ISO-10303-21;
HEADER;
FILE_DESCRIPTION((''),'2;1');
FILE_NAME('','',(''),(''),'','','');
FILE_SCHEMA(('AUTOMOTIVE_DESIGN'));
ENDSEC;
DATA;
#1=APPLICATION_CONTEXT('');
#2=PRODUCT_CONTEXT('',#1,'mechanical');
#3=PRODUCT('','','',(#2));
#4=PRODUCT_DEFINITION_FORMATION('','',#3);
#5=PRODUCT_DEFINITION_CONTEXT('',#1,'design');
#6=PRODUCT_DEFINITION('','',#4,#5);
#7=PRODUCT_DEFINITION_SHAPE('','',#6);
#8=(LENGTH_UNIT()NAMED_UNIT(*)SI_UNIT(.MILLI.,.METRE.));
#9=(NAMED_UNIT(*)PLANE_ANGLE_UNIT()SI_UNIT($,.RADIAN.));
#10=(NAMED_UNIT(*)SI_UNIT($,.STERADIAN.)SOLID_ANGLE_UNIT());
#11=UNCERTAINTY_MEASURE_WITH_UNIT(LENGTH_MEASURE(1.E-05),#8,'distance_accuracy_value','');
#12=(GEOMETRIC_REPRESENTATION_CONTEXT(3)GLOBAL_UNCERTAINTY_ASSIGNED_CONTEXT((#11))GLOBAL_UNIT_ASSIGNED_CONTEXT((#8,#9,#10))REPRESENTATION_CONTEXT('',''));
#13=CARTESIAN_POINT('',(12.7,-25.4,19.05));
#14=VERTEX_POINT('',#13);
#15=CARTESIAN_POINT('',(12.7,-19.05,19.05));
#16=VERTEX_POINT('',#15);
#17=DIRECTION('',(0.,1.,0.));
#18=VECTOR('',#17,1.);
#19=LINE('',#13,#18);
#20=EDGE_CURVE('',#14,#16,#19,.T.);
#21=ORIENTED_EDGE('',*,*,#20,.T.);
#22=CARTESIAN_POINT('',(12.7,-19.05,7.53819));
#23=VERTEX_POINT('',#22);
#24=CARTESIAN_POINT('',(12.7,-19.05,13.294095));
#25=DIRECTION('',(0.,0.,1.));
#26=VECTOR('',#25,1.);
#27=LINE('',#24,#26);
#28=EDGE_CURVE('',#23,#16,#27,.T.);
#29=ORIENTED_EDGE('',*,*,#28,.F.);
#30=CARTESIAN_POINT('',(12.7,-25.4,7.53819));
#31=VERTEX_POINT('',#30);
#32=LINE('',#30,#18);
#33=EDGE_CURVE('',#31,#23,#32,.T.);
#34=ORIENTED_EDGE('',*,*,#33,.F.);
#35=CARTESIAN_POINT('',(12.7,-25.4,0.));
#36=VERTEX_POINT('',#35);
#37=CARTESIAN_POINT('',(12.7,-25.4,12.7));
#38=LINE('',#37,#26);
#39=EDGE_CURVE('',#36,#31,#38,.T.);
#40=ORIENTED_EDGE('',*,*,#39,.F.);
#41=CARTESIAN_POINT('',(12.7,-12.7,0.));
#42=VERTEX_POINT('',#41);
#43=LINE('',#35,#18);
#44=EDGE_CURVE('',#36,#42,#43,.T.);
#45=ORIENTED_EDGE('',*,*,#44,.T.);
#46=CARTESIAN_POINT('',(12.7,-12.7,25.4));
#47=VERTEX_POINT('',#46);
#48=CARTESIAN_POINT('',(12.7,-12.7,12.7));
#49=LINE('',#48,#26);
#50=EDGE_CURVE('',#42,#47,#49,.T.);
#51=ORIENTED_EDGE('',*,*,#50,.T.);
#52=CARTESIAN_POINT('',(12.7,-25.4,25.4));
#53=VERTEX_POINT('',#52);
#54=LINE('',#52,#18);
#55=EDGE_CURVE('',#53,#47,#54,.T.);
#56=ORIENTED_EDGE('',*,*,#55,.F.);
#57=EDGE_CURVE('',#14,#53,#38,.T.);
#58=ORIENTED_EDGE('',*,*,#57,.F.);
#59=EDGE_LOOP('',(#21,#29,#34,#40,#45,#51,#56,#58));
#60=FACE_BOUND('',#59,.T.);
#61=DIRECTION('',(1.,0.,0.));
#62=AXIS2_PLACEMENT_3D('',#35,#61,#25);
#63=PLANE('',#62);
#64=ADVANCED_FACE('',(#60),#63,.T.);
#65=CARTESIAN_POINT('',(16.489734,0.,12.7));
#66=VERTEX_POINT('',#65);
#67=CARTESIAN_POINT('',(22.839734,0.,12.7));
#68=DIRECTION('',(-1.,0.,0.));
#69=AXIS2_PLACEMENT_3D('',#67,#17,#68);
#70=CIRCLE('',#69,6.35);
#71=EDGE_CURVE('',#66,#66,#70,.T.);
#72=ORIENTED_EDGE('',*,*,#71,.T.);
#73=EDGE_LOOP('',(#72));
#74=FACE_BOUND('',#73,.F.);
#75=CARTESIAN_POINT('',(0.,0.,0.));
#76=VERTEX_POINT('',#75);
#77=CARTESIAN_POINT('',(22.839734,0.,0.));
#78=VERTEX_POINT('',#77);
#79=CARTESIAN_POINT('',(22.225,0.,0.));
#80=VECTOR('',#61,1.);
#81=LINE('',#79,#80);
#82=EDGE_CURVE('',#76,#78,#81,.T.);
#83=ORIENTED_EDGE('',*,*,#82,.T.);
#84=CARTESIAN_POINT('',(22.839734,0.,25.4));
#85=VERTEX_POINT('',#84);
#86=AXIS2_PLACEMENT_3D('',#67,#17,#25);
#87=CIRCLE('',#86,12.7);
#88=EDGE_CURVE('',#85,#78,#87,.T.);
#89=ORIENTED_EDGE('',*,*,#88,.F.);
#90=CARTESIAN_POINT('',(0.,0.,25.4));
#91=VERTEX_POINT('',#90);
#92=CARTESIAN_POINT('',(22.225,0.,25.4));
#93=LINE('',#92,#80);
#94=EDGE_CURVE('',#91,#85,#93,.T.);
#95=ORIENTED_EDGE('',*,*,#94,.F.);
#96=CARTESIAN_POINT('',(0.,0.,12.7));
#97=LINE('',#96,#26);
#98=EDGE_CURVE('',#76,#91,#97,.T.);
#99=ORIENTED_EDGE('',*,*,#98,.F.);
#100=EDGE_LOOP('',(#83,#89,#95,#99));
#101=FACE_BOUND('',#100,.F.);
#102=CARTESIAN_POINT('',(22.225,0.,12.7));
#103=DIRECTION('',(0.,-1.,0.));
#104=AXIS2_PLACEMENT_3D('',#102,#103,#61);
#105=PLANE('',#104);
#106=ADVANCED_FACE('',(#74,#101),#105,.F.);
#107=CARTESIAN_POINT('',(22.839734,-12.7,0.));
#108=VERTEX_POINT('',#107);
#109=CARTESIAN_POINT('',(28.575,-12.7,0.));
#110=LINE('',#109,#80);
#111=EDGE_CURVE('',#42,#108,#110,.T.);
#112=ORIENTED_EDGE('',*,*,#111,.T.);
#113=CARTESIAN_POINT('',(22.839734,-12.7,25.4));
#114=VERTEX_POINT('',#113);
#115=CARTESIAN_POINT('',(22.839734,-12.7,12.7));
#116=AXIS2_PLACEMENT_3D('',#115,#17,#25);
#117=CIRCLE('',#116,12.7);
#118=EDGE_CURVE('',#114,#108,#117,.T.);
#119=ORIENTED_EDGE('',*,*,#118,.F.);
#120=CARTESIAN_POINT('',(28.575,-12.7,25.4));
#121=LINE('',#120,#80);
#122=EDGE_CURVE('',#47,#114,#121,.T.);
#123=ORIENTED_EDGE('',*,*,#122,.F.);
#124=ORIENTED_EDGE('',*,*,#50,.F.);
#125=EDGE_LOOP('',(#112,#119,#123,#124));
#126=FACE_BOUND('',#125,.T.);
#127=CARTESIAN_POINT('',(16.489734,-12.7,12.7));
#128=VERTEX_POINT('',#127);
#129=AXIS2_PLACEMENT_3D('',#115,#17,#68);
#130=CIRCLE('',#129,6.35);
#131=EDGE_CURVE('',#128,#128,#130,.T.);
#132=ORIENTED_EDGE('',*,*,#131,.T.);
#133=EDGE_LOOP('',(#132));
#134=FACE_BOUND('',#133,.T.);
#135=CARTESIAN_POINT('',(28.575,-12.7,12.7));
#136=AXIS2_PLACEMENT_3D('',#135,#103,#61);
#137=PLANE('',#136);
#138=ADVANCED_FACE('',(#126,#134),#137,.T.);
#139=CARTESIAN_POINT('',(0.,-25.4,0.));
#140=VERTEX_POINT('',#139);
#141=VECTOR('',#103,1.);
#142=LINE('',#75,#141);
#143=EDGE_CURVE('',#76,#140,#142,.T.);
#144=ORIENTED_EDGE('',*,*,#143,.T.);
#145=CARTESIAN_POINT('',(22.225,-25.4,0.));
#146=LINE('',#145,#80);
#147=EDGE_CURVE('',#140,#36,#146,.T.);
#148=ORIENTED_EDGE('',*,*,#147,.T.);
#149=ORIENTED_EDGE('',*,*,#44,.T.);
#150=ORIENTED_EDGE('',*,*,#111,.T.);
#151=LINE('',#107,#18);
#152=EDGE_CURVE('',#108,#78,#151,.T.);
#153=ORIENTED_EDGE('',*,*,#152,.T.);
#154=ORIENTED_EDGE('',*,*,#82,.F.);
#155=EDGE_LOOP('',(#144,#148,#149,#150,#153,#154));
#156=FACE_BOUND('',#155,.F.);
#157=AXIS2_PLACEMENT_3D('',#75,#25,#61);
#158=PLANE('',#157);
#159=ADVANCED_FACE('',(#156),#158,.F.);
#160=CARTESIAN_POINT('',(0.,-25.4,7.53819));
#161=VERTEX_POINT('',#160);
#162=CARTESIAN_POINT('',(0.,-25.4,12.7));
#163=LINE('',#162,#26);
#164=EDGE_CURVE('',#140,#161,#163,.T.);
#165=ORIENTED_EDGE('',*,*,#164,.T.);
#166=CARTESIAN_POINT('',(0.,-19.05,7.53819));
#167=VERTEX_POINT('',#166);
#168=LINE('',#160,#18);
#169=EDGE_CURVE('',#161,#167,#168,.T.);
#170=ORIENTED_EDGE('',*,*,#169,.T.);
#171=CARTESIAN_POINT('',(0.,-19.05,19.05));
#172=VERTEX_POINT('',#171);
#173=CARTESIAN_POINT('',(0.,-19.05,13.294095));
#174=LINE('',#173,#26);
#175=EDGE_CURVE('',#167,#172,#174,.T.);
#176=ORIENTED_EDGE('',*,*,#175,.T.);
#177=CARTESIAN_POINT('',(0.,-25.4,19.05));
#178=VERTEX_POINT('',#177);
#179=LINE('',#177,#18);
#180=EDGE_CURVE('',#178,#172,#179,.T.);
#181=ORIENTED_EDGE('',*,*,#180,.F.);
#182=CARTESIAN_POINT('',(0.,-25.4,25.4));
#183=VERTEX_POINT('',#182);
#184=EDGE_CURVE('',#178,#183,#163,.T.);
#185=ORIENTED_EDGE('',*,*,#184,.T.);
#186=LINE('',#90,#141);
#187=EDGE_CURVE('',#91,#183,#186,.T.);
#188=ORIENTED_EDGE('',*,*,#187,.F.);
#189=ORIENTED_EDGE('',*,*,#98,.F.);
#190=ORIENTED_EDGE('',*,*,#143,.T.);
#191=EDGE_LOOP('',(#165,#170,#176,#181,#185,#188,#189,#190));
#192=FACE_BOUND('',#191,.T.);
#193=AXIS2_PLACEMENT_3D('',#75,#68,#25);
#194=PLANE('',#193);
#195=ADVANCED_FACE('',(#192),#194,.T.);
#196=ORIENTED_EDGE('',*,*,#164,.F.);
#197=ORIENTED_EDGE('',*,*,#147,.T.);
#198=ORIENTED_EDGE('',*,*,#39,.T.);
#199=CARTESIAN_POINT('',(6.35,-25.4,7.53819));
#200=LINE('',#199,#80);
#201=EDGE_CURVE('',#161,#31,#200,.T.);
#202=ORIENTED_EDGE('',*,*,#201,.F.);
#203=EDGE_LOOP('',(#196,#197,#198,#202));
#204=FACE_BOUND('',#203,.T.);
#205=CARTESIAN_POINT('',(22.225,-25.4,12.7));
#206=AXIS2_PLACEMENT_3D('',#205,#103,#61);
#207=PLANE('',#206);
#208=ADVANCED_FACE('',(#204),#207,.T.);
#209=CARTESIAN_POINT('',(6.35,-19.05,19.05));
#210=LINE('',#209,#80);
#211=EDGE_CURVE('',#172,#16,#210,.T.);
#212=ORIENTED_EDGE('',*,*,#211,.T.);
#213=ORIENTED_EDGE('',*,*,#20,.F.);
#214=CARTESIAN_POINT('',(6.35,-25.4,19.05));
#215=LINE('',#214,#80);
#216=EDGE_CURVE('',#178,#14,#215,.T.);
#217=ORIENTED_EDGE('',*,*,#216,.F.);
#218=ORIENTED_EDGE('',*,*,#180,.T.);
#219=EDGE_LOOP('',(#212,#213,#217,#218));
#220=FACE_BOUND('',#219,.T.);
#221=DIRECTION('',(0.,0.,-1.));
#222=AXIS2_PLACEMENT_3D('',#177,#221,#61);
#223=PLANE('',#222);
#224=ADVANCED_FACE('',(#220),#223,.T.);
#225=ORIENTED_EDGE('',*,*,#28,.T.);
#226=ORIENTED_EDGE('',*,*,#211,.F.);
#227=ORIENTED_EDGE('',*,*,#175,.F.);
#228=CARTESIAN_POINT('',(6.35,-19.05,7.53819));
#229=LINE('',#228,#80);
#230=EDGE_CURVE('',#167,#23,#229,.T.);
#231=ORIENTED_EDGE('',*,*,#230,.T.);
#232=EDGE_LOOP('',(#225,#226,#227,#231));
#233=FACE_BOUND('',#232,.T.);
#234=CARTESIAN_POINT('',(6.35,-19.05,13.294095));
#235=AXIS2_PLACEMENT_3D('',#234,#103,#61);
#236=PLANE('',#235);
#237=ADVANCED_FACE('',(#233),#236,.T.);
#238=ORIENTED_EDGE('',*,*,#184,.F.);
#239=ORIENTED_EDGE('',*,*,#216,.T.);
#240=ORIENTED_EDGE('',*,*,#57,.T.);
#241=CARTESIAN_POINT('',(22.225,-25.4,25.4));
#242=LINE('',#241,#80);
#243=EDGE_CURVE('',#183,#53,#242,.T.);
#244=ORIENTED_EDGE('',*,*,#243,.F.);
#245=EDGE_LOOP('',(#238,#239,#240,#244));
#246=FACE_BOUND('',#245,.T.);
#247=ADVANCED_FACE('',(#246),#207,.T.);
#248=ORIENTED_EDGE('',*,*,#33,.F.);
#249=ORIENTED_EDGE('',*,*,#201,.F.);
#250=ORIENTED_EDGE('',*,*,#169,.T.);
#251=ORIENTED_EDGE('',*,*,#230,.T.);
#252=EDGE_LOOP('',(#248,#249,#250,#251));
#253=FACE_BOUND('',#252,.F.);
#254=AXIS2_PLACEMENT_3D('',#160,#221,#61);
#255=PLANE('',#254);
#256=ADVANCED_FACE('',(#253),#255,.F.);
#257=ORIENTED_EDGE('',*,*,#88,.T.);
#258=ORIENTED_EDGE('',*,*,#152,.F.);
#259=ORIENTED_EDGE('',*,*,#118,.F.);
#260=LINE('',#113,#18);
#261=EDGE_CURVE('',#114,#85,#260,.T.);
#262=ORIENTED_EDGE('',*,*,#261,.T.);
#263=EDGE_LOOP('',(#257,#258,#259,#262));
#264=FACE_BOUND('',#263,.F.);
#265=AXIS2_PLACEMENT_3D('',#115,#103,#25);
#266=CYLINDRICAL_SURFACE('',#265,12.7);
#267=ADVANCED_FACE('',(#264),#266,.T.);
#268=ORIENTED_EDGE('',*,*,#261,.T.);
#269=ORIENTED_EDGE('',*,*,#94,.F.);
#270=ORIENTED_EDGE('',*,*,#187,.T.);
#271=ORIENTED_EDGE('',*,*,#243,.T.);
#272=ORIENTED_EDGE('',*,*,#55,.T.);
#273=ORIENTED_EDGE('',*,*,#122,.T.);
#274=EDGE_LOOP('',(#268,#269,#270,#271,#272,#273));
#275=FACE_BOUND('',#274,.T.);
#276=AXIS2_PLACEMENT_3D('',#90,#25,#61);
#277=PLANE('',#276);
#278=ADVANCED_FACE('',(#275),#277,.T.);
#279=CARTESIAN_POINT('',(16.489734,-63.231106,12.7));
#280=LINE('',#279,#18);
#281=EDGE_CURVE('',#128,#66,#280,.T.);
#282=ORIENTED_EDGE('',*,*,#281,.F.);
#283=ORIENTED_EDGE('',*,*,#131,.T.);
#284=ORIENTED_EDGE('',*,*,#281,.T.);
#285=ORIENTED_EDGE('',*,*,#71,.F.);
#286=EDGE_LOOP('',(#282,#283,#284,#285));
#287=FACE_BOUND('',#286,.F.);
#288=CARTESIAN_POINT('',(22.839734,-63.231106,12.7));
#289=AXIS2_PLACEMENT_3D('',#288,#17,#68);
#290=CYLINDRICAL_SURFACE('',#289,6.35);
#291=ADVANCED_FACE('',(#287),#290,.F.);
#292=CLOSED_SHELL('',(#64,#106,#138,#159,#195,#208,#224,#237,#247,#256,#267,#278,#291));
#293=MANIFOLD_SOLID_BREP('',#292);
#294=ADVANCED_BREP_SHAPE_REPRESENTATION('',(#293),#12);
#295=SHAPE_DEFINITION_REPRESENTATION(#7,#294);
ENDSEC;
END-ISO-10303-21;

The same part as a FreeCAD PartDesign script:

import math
import FreeCAD as App
import Part
import Sketcher

V = App.Vector
Q = App.Units.Quantity

doc = App.newDocument("Part")
body = doc.addObject("PartDesign::Body", "Body")

sketch1 = body.newObject("Sketcher::SketchObject", "Sketch")
sketch1.AttachmentSupport = (doc.getObject("XZ_Plane"), [""])
sketch1.MapMode = "FlatFace"
sketch1.addGeometry(Part.LineSegment(V(0, 25, 0), V(0, 0, 0)), False)
sketch1.addGeometry(Part.LineSegment(V(0, 0, 0), V(44, 0, 0)), False)
sketch1.addGeometry(Part.LineSegment(V(44, 0, 0), V(44, 25, 0)), False)
sketch1.addGeometry(Part.LineSegment(V(44, 25, 0), V(0, 25, 0)), False)
sketch1.addConstraint(Sketcher.Constraint("Coincident", 0, 2, 1, 1))
sketch1.addConstraint(Sketcher.Constraint("Coincident", 1, 2, 2, 1))
sketch1.addConstraint(Sketcher.Constraint("Coincident", 2, 2, 3, 1))
sketch1.addConstraint(Sketcher.Constraint("Coincident", 3, 2, 0, 1))
sketch1.addConstraint(Sketcher.Constraint("Vertical", 0))
sketch1.addConstraint(Sketcher.Constraint("Horizontal", 1))
sketch1.addConstraint(Sketcher.Constraint("Vertical", 2))
sketch1.addConstraint(Sketcher.Constraint("Horizontal", 3))
sketch1.addConstraint(Sketcher.Constraint("Coincident", 0, 2, -1, 1))
sketch1.addConstraint(Sketcher.Constraint("DistanceY", 0, 2, 0, 1, Q("1 in")))
sketch1.addConstraint(Sketcher.Constraint("DistanceX", 1, 1, 1, 2, Q("1.75 in")))
pad1 = body.newObject("PartDesign::Pad", "Pad")
pad1.Profile = sketch1
pad1.Length = Q("1 in")

sketch2 = body.newObject("Sketcher::SketchObject", "Sketch001")
sketch2.AttachmentSupport = (doc.getObject("XZ_Plane"), [""])
sketch2.MapMode = "FlatFace"
sketch2.AttachmentOffset = App.Placement(V(0, 0, 1 * 25.4), App.Rotation())
sketch2.addGeometry(Part.LineSegment(V(13, 25, 0), V(13, 0, 0)), False)
sketch2.addGeometry(Part.LineSegment(V(13, 0, 0), V(44, 0, 0)), False)
sketch2.addGeometry(Part.LineSegment(V(44, 0, 0), V(44, 25, 0)), False)
sketch2.addGeometry(Part.LineSegment(V(44, 25, 0), V(13, 25, 0)), False)
sketch2.addConstraint(Sketcher.Constraint("Coincident", 0, 2, 1, 1))
sketch2.addConstraint(Sketcher.Constraint("Coincident", 1, 2, 2, 1))
sketch2.addConstraint(Sketcher.Constraint("Coincident", 2, 2, 3, 1))
sketch2.addConstraint(Sketcher.Constraint("Coincident", 3, 2, 0, 1))
sketch2.addConstraint(Sketcher.Constraint("Vertical", 0))
sketch2.addConstraint(Sketcher.Constraint("Horizontal", 1))
sketch2.addConstraint(Sketcher.Constraint("Vertical", 2))
sketch2.addConstraint(Sketcher.Constraint("Horizontal", 3))
sketch2.addConstraint(Sketcher.Constraint("PointOnObject", 0, 2, -1))
sketch2.addConstraint(Sketcher.Constraint("DistanceY", 0, 2, 0, 1, Q("1 in")))
sketch2.addConstraint(Sketcher.Constraint("DistanceX", 1, 1, 1, 2, Q("1.25 in")))
sketch2.addConstraint(Sketcher.Constraint("DistanceX", -1, 1, 0, 2, Q("0.5 in")))
pocket1 = body.newObject("PartDesign::Pocket", "Pocket")
pocket1.Profile = sketch2
pocket1.Length = Q("0.5 in")

sketch3 = body.newObject("Sketcher::SketchObject", "Sketch002")
sketch3.AttachmentSupport = (doc.getObject("XZ_Plane"), [""])
sketch3.MapMode = "FlatFace"
sketch3.AttachmentOffset = App.Placement(V(0, 0, 1 * 25.4), App.Rotation())
sketch3.addGeometry(Part.LineSegment(V(0, 19, 0), V(0, 8, 0)), False)
sketch3.addGeometry(Part.LineSegment(V(0, 8, 0), V(13, 8, 0)), False)
sketch3.addGeometry(Part.LineSegment(V(13, 8, 0), V(13, 19, 0)), False)
sketch3.addGeometry(Part.LineSegment(V(13, 19, 0), V(0, 19, 0)), False)
sketch3.addConstraint(Sketcher.Constraint("Coincident", 0, 2, 1, 1))
sketch3.addConstraint(Sketcher.Constraint("Coincident", 1, 2, 2, 1))
sketch3.addConstraint(Sketcher.Constraint("Coincident", 2, 2, 3, 1))
sketch3.addConstraint(Sketcher.Constraint("Coincident", 3, 2, 0, 1))
sketch3.addConstraint(Sketcher.Constraint("Vertical", 0))
sketch3.addConstraint(Sketcher.Constraint("Horizontal", 1))
sketch3.addConstraint(Sketcher.Constraint("Vertical", 2))
sketch3.addConstraint(Sketcher.Constraint("Horizontal", 3))
sketch3.addConstraint(Sketcher.Constraint("PointOnObject", 0, 2, -2))
sketch3.addConstraint(Sketcher.Constraint("DistanceX", 1, 1, 1, 2, Q("0.5 in")))
sketch3.addConstraint(Sketcher.Constraint("DistanceY", -1, 1, 2, 2, Q("0.75 in")))
sketch3.addConstraint(Sketcher.Constraint("DistanceY", 0, 2, 0, 1, Q("11.51181 mm")))
pocket2 = body.newObject("PartDesign::Pocket", "Pocket001")
pocket2.Profile = sketch3
pocket2.Length = Q("0.25 in")

sketch4 = body.newObject("Sketcher::SketchObject", "Sketch003")
sketch4.AttachmentSupport = (doc.getObject("XZ_Plane"), [""])
sketch4.MapMode = "FlatFace"
sketch4.AttachmentOffset = App.Placement(V(0, 0, 0.5 * 25.4), App.Rotation())
sketch4.addGeometry(Part.LineSegment(V(44, 25, 0), V(23, 25, 0)), False)
sketch4.addGeometry(Part.ArcOfCircle(Part.Circle(V(23, 13, 0), V(0, 0, 1), 13), math.radians(-90), math.radians(90)), False)
sketch4.addGeometry(Part.LineSegment(V(23, 0, 0), V(44, 0, 0)), False)
sketch4.addGeometry(Part.LineSegment(V(44, 0, 0), V(44, 25, 0)), False)
sketch4.addConstraint(Sketcher.Constraint("Tangent", 0, 2, 1, 2))
sketch4.addConstraint(Sketcher.Constraint("Tangent", 1, 1, 2, 1))
sketch4.addConstraint(Sketcher.Constraint("Coincident", 2, 2, 3, 1))
sketch4.addConstraint(Sketcher.Constraint("Coincident", 3, 2, 0, 1))
sketch4.addConstraint(Sketcher.Constraint("Horizontal", 0))
sketch4.addConstraint(Sketcher.Constraint("Horizontal", 2))
sketch4.addConstraint(Sketcher.Constraint("Vertical", 3))
sketch4.addConstraint(Sketcher.Constraint("PointOnObject", 1, 1, -1))
sketch4.addConstraint(Sketcher.Constraint("Radius", 1, Q("0.5 in")))
sketch4.addConstraint(Sketcher.Constraint("DistanceX", -1, 1, 2, 2, Q("1.75 in")))
sketch4.addConstraint(Sketcher.Constraint("DistanceX", 0, 2, 0, 1, Q("21.610266 mm")))
pocket3 = body.newObject("PartDesign::Pocket", "Pocket002")
pocket3.Profile = sketch4
pocket3.Type = "ThroughAll"

sketch5 = body.newObject("Sketcher::SketchObject", "Sketch004")
sketch5.AttachmentSupport = (doc.getObject("XZ_Plane"), [""])
sketch5.MapMode = "FlatFace"
sketch5.AttachmentOffset = App.Placement(V(0, 0, 0.5 * 25.4), App.Rotation())
sketch5.addGeometry(Part.Circle(V(23, 13, 0), V(0, 0, 1), 6), False)
sketch5.addConstraint(Sketcher.Constraint("Diameter", 0, Q("0.5 in")))
sketch5.addConstraint(Sketcher.Constraint("DistanceY", -1, 1, 0, 3, Q("0.5 in")))
sketch5.addConstraint(Sketcher.Constraint("DistanceX", -1, 1, 0, 3, Q("22.839734 mm")))
doc.recompute()
hole = body.newObject("PartDesign::Hole", "Hole")
hole.Profile = sketch5
hole.ThreadType = "None"
hole.Diameter = Q("0.5 in")
hole.DepthType = "ThroughAll"

doc.recompute()
